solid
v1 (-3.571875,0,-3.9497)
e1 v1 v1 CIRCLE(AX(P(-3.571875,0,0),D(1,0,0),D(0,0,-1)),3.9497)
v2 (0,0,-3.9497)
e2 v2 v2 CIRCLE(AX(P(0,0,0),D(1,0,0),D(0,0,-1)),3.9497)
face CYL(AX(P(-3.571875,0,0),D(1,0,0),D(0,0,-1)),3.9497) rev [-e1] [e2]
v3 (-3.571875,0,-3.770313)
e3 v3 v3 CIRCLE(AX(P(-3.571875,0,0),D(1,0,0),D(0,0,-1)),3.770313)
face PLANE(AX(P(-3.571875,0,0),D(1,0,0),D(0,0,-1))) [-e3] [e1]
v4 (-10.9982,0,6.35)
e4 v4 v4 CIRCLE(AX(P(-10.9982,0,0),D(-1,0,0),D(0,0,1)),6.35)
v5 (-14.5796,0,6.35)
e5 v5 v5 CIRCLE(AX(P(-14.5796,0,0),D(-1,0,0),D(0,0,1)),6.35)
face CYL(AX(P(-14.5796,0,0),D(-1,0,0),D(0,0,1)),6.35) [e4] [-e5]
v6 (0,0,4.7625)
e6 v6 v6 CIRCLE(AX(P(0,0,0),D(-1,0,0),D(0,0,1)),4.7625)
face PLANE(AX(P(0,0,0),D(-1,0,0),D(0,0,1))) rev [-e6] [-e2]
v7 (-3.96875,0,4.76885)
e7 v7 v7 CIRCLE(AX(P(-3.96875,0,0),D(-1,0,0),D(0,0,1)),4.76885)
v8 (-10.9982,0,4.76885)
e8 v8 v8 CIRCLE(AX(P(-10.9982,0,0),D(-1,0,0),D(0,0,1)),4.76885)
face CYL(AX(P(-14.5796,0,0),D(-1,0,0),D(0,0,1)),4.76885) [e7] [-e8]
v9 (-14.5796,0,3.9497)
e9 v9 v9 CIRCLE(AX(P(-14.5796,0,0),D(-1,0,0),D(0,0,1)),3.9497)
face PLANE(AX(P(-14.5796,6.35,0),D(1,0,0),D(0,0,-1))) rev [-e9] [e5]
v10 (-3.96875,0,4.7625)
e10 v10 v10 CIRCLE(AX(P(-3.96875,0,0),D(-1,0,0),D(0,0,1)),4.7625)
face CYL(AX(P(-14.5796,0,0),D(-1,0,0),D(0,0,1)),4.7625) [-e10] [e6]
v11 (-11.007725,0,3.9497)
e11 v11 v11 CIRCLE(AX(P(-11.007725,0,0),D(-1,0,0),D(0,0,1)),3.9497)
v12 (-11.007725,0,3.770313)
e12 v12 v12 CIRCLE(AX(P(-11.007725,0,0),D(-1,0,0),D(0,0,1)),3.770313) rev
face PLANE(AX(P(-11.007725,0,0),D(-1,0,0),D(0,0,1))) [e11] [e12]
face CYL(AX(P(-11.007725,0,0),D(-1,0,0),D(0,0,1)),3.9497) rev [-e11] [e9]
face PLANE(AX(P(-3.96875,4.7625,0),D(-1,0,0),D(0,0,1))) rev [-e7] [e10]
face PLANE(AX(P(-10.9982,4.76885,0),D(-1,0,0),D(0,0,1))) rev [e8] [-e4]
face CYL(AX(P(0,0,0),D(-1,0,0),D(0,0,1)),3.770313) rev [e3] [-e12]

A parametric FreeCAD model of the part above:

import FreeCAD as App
import Part
import Sketcher
from FreeCAD import Vector
Q = App.Units.Quantity

doc = App.newDocument("Part")
body = doc.addObject("PartDesign::Body", "Body")

# Sketch on XY plane
sketch1 = doc.addObject("Sketcher::SketchObject", "Sketch")
body.addObject(sketch1)
sketch1.AttachmentSupport = (doc.XY_Plane, [""])
sketch1.MapMode = "FlatFace"
sketch1.addGeometry([
    Part.LineSegment(Vector(0, 0, 0), Vector(0, 4.763, 0)),  # 0
    Part.LineSegment(Vector(0, 4.763, 0), Vector(-3.969, 4.763, 0)),  # 1
    Part.LineSegment(Vector(-3.969, 4.763, 0), Vector(-3.969, 4.769, 0)),  # 2
    Part.LineSegment(Vector(-3.969, 4.769, 0), Vector(-10.998, 4.769, 0)),  # 3
    Part.LineSegment(Vector(-10.998, 4.769, 0), Vector(-10.998, 6.35, 0)),  # 4
    Part.LineSegment(Vector(-10.998, 6.35, 0), Vector(-14.58, 6.35, 0)),  # 5
    Part.LineSegment(Vector(-14.58, 6.35, 0), Vector(-14.58, 0, 0)),  # 6
    Part.LineSegment(Vector(-14.58, 0, 0), Vector(0, 0, 0)),  # 7
], False)
sketch1.addConstraint([
    Sketcher.Constraint("Coincident", 0, 2, 1, 1),
    Sketcher.Constraint("Coincident", 1, 2, 2, 1),
    Sketcher.Constraint("Coincident", 2, 2, 3, 1),
    Sketcher.Constraint("Coincident", 3, 2, 4, 1),
    Sketcher.Constraint("Coincident", 4, 2, 5, 1),
    Sketcher.Constraint("Coincident", 5, 2, 6, 1),
    Sketcher.Constraint("Coincident", 6, 2, 7, 1),
    Sketcher.Constraint("Coincident", 7, 2, 0, 1),
    Sketcher.Constraint("Vertical", 0),
    Sketcher.Constraint("Horizontal", 1),
    Sketcher.Constraint("Vertical", 2),
    Sketcher.Constraint("Horizontal", 3),
    Sketcher.Constraint("Vertical", 4),
    Sketcher.Constraint("Horizontal", 5),
    Sketcher.Constraint("Vertical", 6),
    Sketcher.Constraint("Horizontal", 7),
    Sketcher.Constraint("Coincident", 7, 2, -1, 1),
    Sketcher.Constraint("DistanceY", 6, 2, 6, 1, Q("0.25 in")),
    Sketcher.Constraint("DistanceX", 1, 2, 1, 1, Q("0.15625 in")),
    Sketcher.Constraint("DistanceX", 5, 2, 5, 1, Q("0.141 in")),
    Sketcher.Constraint("DistanceX", 7, 1, 7, 2, Q("0.574 in")),
    Sketcher.Constraint("DistanceY", 0, 1, 0, 2, Q("0.1875 in")),
    Sketcher.Constraint("DistanceY", 2, 1, 2, 2, 0.00635),
])
revolution = doc.addObject("PartDesign::Revolution", "Revolution")
body.addObject(revolution)
revolution.Profile = sketch1
revolution.ReferenceAxis = (sketch1, ["H_Axis"])
revolution.Angle = 360

# Sketch on YZ plane
sketch2 = doc.addObject("Sketcher::SketchObject", "Sketch001")
body.addObject(sketch2)
sketch2.AttachmentSupport = (doc.YZ_Plane, [""])
sketch2.MapMode = "FlatFace"
sketch2.addGeometry(Part.Circle(Vector(0, 0, 0), Vector(0, 0, 1), 3.9), False)
sketch2.addConstraint([
    Sketcher.Constraint("Coincident", 0, 3, -1, 1),
    Sketcher.Constraint("Diameter", 0, Q("0.311 in")),
])
pocket1 = doc.addObject("PartDesign::Pocket", "Pocket")
body.addObject(pocket1)
pocket1.Profile = sketch2
pocket1.Length = Q("0.140625 in")

# Sketch on YZ plane
sketch3 = doc.addObject("Sketcher::SketchObject", "Sketch002")
body.addObject(sketch3)
sketch3.AttachmentSupport = (doc.YZ_Plane, [""])
sketch3.MapMode = "FlatFace"
sketch3.AttachmentOffset = App.Placement(Vector(0, 0, -0.574 * 25.4), App.Rotation())
sketch3.addGeometry(Part.Circle(Vector(0, 0, 0), Vector(0, 0, 1), 3.8), False)
sketch3.addConstraint([
    Sketcher.Constraint("Coincident", 0, 3, -1, 1),
    Sketcher.Constraint("Diameter", 0, Q("0.296875 in")),
])
pocket2 = doc.addObject("PartDesign::Pocket", "Pocket001")
body.addObject(pocket2)
pocket2.Profile = sketch3
pocket2.Type = "ThroughAll"
pocket2.Reversed = True

# Sketch on YZ plane
sketch4 = doc.addObject("Sketcher::SketchObject", "Sketch003")
body.addObject(sketch4)
sketch4.AttachmentSupport = (doc.YZ_Plane, [""])
sketch4.MapMode = "FlatFace"
sketch4.AttachmentOffset = App.Placement(Vector(0, 0, -11.007725), App.Rotation())
sketch4.addGeometry(Part.Circle(Vector(0, 0, 0), Vector(0, 0, 1), 3.9), False)
sketch4.addConstraint([
    Sketcher.Constraint("Coincident", 0, 3, -1, 1),
    Sketcher.Constraint("Diameter", 0, Q("0.311 in")),
])
pocket3 = doc.addObject("PartDesign::Pocket", "Pocket002")
body.addObject(pocket3)
pocket3.Profile = sketch4
pocket3.Length = Q("0.140625 in")

doc.recompute()
